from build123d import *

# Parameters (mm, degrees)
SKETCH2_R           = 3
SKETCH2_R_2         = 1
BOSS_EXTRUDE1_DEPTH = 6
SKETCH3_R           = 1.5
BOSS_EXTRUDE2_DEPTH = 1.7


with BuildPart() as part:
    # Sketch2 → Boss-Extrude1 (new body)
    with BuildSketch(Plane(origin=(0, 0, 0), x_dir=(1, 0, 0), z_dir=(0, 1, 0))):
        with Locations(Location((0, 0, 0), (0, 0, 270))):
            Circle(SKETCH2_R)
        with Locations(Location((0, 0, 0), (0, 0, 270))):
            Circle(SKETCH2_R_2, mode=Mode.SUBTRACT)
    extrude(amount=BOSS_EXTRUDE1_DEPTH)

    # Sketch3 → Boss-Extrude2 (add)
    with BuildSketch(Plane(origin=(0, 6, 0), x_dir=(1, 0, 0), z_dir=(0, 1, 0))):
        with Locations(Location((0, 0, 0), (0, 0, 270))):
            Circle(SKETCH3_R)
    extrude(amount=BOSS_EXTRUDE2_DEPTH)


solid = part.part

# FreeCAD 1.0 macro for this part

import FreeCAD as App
import Part
import Sketcher

V = App.Vector

doc = App.newDocument("Part")
body = doc.addObject("PartDesign::Body", "Body")

# Sketch on XZ plane
sketch1 = body.newObject("Sketcher::SketchObject", "Sketch")
sketch1.AttachmentSupport = (doc.getObject("XZ_Plane"), [""])
sketch1.MapMode = "FlatFace"
sketch1.addGeometry(Part.Circle(V(0, 0, 0), V(0, 0, 1), 3), False)
sketch1.addGeometry(Part.Circle(V(0, 0, 0), V(0, 0, 1), 1), False)
sketch1.addConstraint(Sketcher.Constraint("Coincident", 0, 3, -1, 1))
sketch1.addConstraint(Sketcher.Constraint("Coincident", 1, 3, -1, 1))
sketch1.addConstraint(Sketcher.Constraint("Diameter", 0, 6.0))
sketch1.addConstraint(Sketcher.Constraint("Diameter", 1, 2.0))
pad1 = body.newObject("PartDesign::Pad", "Pad")
pad1.Profile = sketch1
pad1.Length = 6
pad1.Reversed = True

# Sketch on XZ plane
sketch2 = body.newObject("Sketcher::SketchObject", "Sketch001")
sketch2.AttachmentSupport = (doc.getObject("XZ_Plane"), [""])
sketch2.MapMode = "FlatFace"
sketch2.AttachmentOffset = App.Placement(V(0, 0, -6), App.Rotation())
sketch2.addGeometry(Part.Circle(V(0, 0, 0), V(0, 0, 1), 1.5), False)
sketch2.addConstraint(Sketcher.Constraint("Coincident", 0, 3, -1, 1))
sketch2.addConstraint(Sketcher.Constraint("Diameter", 0, 3.0))
pad2 = body.newObject("PartDesign::Pad", "Pad001")
pad2.Profile = sketch2
pad2.Length = 1.7
pad2.Reversed = True

doc.recompute()
